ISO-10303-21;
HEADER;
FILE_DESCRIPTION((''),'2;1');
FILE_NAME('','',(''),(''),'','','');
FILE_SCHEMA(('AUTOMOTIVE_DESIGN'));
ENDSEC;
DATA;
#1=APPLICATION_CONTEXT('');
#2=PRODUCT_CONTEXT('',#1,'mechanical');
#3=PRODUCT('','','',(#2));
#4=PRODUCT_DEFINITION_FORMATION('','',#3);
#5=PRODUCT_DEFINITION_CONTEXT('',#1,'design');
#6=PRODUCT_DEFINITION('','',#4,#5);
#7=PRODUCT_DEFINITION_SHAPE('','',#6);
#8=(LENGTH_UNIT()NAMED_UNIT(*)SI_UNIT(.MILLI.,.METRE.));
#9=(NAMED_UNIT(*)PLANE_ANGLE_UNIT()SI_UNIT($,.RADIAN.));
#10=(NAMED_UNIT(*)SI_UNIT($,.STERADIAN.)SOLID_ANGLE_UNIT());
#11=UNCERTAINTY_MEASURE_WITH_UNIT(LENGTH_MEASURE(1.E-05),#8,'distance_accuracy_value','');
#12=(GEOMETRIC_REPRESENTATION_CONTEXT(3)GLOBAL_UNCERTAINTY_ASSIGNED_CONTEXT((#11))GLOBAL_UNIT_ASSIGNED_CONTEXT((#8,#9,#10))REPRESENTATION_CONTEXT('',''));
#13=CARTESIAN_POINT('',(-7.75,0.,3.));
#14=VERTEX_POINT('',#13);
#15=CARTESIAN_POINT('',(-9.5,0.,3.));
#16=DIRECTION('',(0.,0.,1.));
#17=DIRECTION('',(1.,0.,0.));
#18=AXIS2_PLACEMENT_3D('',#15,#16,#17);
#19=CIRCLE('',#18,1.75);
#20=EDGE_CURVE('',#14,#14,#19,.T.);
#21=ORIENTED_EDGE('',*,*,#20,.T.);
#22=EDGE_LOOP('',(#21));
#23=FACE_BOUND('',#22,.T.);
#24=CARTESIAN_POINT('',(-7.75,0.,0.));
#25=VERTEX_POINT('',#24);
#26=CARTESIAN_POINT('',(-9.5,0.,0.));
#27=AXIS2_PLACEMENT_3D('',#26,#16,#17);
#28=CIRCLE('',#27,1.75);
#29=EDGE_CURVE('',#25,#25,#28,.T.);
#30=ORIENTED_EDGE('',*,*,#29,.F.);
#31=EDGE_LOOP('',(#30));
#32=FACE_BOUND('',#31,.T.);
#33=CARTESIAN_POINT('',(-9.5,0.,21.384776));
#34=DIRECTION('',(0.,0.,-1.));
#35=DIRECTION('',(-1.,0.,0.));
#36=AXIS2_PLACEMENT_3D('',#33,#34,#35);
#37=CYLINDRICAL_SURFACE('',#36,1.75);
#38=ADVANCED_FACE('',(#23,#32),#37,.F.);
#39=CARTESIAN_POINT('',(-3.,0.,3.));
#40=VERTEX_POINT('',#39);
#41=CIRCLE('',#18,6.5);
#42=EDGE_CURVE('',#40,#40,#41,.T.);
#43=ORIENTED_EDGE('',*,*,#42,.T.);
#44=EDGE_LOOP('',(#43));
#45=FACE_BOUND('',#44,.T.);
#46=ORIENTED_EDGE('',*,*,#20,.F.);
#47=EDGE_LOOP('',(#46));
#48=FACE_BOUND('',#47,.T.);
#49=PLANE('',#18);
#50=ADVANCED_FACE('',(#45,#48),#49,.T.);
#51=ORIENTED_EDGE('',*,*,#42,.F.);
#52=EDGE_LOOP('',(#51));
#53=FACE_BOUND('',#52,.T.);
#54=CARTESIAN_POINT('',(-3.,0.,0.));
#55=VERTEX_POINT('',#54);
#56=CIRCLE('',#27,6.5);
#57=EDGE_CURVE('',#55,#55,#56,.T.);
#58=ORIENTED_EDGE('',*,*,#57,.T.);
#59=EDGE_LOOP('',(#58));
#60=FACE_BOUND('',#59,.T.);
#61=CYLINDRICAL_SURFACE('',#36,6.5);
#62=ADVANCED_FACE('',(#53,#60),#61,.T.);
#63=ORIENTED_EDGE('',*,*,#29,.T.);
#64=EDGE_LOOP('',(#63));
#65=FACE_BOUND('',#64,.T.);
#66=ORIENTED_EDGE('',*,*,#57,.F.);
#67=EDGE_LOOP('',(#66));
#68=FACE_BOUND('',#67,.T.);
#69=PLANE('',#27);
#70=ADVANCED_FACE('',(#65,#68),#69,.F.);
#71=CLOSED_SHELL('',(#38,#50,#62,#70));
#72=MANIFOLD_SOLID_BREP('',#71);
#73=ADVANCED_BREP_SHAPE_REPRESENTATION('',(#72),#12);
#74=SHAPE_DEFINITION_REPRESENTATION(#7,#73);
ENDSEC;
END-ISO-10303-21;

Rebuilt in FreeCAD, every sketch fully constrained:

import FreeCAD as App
import Part
import Sketcher

V = App.Vector
Q = App.Units.Quantity

doc = App.newDocument("Part")
body = doc.addObject("PartDesign::Body", "Body")

# Sketch on XY plane
sketch1 = body.newObject("Sketcher::SketchObject", "Sketch")
sketch1.AttachmentSupport = (doc.getObject("XY_Plane"), [""])
sketch1.MapMode = "FlatFace"
sketch1.addGeometry([
    Part.Circle(V(-9.5, 0, 0), V(0, 0, 1), 6.5),
    Part.Circle(V(-9.5, 0, 0), V(0, 0, 1), 1.75),
], False)
sketch1.addConstraint([
    Sketcher.Constraint("Coincident", 1, 3, 0, 3),
    Sketcher.Constraint("PointOnObject", 0, 3, -1),
    Sketcher.Constraint("Diameter", 0, Q("13 mm")),
    Sketcher.Constraint("Diameter", 1, Q("3.5 mm")),
    Sketcher.Constraint("DistanceX", 0, 3, -1, 1, Q("9.5 mm")),
])
pad1 = body.newObject("PartDesign::Pad", "Pad")
pad1.Profile = sketch1
pad1.Length = 3

doc.recompute()
